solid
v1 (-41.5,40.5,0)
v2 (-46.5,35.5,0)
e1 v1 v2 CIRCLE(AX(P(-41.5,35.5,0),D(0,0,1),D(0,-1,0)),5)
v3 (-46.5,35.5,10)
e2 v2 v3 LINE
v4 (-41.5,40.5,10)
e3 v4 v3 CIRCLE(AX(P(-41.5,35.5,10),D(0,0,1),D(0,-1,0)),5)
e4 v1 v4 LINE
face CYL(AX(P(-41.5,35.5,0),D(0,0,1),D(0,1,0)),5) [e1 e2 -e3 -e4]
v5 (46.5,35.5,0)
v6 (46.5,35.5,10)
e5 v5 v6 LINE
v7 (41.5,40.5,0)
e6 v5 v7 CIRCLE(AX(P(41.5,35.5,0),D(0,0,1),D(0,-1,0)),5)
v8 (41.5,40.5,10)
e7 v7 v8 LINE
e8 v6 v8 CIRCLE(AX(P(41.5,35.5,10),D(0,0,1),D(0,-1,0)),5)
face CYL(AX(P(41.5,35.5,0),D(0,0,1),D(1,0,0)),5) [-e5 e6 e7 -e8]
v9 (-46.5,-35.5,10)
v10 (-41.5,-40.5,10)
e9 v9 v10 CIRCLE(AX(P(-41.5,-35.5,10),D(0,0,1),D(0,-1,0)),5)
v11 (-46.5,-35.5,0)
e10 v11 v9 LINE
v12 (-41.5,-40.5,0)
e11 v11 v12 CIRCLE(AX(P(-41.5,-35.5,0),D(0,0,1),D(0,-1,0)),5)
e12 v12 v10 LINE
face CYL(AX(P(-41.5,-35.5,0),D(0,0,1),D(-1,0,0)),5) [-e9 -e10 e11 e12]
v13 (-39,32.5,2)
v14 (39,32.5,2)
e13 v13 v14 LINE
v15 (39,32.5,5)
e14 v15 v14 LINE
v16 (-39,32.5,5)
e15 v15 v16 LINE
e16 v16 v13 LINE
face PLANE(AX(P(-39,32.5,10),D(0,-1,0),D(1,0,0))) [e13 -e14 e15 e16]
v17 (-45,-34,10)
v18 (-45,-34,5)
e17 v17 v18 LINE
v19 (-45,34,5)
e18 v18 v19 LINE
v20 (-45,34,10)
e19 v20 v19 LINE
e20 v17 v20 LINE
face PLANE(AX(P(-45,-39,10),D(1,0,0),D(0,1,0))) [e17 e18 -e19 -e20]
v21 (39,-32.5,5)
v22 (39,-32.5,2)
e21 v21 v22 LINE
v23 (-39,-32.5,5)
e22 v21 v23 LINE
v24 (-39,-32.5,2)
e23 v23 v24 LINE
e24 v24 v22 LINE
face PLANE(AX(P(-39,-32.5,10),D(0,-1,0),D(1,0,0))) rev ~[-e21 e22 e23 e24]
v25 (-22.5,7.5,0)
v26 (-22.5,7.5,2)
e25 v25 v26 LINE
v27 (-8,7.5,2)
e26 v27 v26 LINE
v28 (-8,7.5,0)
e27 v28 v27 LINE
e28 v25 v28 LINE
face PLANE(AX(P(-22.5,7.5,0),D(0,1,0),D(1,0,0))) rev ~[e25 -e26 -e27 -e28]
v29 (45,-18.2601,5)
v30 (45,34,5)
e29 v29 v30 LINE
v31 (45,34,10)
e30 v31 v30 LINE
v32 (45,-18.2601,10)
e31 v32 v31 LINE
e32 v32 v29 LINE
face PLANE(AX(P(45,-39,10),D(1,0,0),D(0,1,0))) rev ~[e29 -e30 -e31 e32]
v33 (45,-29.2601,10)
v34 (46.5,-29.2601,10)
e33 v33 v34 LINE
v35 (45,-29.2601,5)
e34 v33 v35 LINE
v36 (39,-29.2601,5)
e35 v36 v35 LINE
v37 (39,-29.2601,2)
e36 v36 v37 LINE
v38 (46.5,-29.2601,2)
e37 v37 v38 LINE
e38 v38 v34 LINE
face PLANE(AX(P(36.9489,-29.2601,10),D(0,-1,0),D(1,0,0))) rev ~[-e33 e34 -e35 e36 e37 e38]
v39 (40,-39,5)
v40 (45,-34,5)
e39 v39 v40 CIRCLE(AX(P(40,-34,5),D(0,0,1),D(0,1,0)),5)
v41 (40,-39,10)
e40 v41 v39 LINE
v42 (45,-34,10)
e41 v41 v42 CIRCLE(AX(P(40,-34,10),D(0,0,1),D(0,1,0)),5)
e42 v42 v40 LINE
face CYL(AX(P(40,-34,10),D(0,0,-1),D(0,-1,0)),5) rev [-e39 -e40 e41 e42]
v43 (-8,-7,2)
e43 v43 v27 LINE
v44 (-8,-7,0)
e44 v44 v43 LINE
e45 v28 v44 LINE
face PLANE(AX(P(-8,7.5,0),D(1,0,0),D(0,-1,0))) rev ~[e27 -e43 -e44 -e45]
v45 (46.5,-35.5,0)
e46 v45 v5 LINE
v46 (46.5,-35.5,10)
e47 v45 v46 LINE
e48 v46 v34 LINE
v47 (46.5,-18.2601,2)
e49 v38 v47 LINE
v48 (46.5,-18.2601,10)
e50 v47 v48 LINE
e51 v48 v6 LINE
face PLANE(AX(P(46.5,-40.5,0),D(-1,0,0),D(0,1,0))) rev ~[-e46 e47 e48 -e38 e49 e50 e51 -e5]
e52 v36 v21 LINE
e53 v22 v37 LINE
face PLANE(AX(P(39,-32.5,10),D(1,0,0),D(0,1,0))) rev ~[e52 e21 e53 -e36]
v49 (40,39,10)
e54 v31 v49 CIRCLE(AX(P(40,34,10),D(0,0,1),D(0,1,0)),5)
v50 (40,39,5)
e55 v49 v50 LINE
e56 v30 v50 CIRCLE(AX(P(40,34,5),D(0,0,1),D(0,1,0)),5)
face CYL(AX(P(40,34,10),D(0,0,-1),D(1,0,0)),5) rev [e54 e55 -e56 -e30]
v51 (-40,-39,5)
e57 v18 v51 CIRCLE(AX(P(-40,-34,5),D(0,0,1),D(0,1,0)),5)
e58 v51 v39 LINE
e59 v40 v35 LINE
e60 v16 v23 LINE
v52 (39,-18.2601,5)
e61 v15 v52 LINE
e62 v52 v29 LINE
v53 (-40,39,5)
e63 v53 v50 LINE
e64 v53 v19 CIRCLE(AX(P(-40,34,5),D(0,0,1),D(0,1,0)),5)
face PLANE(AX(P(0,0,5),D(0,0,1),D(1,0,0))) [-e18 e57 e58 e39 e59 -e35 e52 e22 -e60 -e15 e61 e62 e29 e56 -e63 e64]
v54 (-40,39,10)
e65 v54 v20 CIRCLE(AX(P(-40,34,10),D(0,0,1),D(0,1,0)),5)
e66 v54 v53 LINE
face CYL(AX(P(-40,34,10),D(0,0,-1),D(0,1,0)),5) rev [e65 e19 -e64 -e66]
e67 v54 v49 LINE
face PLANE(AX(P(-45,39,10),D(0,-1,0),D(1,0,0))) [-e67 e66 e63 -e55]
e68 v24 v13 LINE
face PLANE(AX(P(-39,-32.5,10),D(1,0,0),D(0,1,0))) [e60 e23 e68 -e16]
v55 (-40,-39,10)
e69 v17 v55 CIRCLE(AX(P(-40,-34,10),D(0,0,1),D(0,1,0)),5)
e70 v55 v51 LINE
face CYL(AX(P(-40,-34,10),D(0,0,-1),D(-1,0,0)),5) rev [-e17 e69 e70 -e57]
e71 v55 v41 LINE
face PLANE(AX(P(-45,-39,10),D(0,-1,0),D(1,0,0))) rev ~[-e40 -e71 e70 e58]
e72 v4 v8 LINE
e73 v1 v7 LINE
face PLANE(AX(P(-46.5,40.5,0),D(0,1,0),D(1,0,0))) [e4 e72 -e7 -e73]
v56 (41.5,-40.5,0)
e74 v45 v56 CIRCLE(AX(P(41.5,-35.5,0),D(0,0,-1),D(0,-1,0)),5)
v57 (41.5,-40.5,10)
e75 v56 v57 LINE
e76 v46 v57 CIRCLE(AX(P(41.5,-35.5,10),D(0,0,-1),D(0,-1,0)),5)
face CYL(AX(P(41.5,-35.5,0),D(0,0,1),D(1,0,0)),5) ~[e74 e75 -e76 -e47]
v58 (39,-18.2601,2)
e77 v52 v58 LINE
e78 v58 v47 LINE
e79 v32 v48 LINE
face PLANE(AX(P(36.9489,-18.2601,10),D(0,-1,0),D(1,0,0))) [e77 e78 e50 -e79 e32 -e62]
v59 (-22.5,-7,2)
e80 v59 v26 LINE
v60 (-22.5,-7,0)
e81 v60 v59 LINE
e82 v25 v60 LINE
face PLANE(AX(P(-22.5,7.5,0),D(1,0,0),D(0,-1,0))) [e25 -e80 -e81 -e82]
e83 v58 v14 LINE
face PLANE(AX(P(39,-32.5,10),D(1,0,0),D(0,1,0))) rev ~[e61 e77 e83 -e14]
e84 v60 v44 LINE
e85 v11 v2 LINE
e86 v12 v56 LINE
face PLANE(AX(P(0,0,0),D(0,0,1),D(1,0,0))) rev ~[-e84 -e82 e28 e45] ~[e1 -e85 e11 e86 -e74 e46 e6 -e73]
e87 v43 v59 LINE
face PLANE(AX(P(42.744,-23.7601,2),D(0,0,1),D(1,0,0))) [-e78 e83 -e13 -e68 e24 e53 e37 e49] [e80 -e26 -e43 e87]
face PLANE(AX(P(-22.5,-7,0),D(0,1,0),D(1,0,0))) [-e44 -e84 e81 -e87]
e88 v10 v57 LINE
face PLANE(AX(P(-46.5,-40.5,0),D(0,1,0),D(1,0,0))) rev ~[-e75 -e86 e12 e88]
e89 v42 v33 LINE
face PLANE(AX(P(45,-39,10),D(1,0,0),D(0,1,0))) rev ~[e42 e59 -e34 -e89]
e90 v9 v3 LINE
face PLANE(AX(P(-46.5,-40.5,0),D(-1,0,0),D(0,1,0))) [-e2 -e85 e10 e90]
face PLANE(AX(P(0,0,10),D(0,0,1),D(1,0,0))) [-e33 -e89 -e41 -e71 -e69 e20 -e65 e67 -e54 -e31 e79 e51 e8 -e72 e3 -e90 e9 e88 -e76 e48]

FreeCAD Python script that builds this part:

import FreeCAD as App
import Part
import Sketcher

V = App.Vector
Q = App.Units.Quantity


def edges_at(feature, points):
    """Names of the edges that pass closest to the given points."""
    edges = feature.Shape.Edges
    near = lambda p: min(range(len(edges)), key=lambda i: edges[i].distToShape(Part.Vertex(*p))[0])
    return sorted({f"Edge{near(p) + 1}" for p in points})

doc = App.newDocument("Part")
params = doc.addObject("Spreadsheet::Sheet", "Params")
for row, (alias, value) in enumerate([
    ("sketch1_width", "93 mm"),
    ("sketch1_height", "81 mm"),
    ("pad1_length", "10 mm"),
    ("sketch2_width", "78 mm"),
    ("sketch2_height", "65 mm"),
    ("pocket1_length", "8 mm"),
    ("sketch3_width", "90 mm"),
    ("sketch3_height", "78 mm"),
    ("pocket2_length", "5 mm"),
    ("sketch4_height", "11 mm"),
    ("pocket3_length", "8 mm"),
    ("fillet_radius", "5 mm"),
    ("fillet2_radius", "5 mm"),
    ("sketch5_width", "14.5 mm"),
], start=1):
    params.set(f"A{row}", alias)
    params.set(f"B{row}", "=" + value)
    params.setAlias(f"B{row}", alias)

body = doc.addObject("PartDesign::Body", "Body")

# Sketch on XY plane
sketch1 = body.newObject("Sketcher::SketchObject", "Sketch")
sketch1.AttachmentSupport = (doc.getObject("XY_Plane"), [""])
sketch1.MapMode = "FlatFace"
sketch1.addGeometry(Part.LineSegment(V(-46, 40, 0), V(-46, -40, 0)), False)
sketch1.addGeometry(Part.LineSegment(V(-46, -40, 0), V(46, -40, 0)), False)
sketch1.addGeometry(Part.LineSegment(V(46, -40, 0), V(46, 40, 0)), False)
sketch1.addGeometry(Part.LineSegment(V(46, 40, 0), V(-46, 40, 0)), False)
sketch1.addConstraint(Sketcher.Constraint("Coincident", 0, 2, 1, 1))
sketch1.addConstraint(Sketcher.Constraint("Coincident", 1, 2, 2, 1))
sketch1.addConstraint(Sketcher.Constraint("Coincident", 2, 2, 3, 1))
sketch1.addConstraint(Sketcher.Constraint("Coincident", 3, 2, 0, 1))
sketch1.addConstraint(Sketcher.Constraint("Vertical", 0))
sketch1.addConstraint(Sketcher.Constraint("Horizontal", 1))
sketch1.addConstraint(Sketcher.Constraint("Vertical", 2))
sketch1.addConstraint(Sketcher.Constraint("Horizontal", 3))
sketch1.addConstraint(Sketcher.Constraint("Symmetric", 0, 2, 2, 2, -1, 1))
sketch1.addConstraint(Sketcher.Constraint("DistanceX", 1, 1, 1, 2, Q("93 mm")))
sketch1.addConstraint(Sketcher.Constraint("DistanceY", 0, 2, 0, 1, Q("81 mm")))
sketch1.setExpression("Constraints[9]", "Params.sketch1_width")
sketch1.setExpression("Constraints[10]", "Params.sketch1_height")
pad1 = body.newObject("PartDesign::Pad", "Pad")
pad1.Profile = sketch1
pad1.setExpression("Length", "Params.pad1_length")

# Sketch on XY plane
sketch2 = body.newObject("Sketcher::SketchObject", "Sketch001")
sketch2.AttachmentSupport = (doc.getObject("XY_Plane"), [""])
sketch2.MapMode = "FlatFace"
sketch2.AttachmentOffset = App.Placement(V(0, 0, 10), App.Rotation())
sketch2.addGeometry(Part.LineSegment(V(-39, 32, 0), V(-39, -32, 0)), False)
sketch2.addGeometry(Part.LineSegment(V(-39, -32, 0), V(39, -32, 0)), False)
sketch2.addGeometry(Part.LineSegment(V(39, -32, 0), V(39, 32, 0)), False)
sketch2.addGeometry(Part.LineSegment(V(39, 32, 0), V(-39, 32, 0)), False)
sketch2.addConstraint(Sketcher.Constraint("Coincident", 0, 2, 1, 1))
sketch2.addConstraint(Sketcher.Constraint("Coincident", 1, 2, 2, 1))
sketch2.addConstraint(Sketcher.Constraint("Coincident", 2, 2, 3, 1))
sketch2.addConstraint(Sketcher.Constraint("Coincident", 3, 2, 0, 1))
sketch2.addConstraint(Sketcher.Constraint("Vertical", 0))
sketch2.addConstraint(Sketcher.Constraint("Horizontal", 1))
sketch2.addConstraint(Sketcher.Constraint("Vertical", 2))
sketch2.addConstraint(Sketcher.Constraint("Horizontal", 3))
sketch2.addConstraint(Sketcher.Constraint("Symmetric", 0, 2, 2, 2, -1, 1))
sketch2.addConstraint(Sketcher.Constraint("DistanceX", 1, 1, 1, 2, Q("78 mm")))
sketch2.addConstraint(Sketcher.Constraint("DistanceY", 0, 2, 0, 1, Q("65 mm")))
sketch2.setExpression("Constraints[9]", "Params.sketch2_width")
sketch2.setExpression("Constraints[10]", "Params.sketch2_height")
pocket1 = body.newObject("PartDesign::Pocket", "Pocket")
pocket1.Profile = sketch2
pocket1.setExpression("Length", "Params.pocket1_length")

# Sketch on XY plane
sketch3 = body.newObject("Sketcher::SketchObject", "Sketch002")
sketch3.AttachmentSupport = (doc.getObject("XY_Plane"), [""])
sketch3.MapMode = "FlatFace"
sketch3.AttachmentOffset = App.Placement(V(0, 0, 10), App.Rotation())
sketch3.addGeometry(Part.LineSegment(V(-45, 39, 0), V(-45, -39, 0)), False)
sketch3.addGeometry(Part.LineSegment(V(-45, -39, 0), V(45, -39, 0)), False)
sketch3.addGeometry(Part.LineSegment(V(45, -39, 0), V(45, 39, 0)), False)
sketch3.addGeometry(Part.LineSegment(V(45, 39, 0), V(-45, 39, 0)), False)
sketch3.addConstraint(Sketcher.Constraint("Coincident", 0, 2, 1, 1))
sketch3.addConstraint(Sketcher.Constraint("Coincident", 1, 2, 2, 1))
sketch3.addConstraint(Sketcher.Constraint("Coincident", 2, 2, 3, 1))
sketch3.addConstraint(Sketcher.Constraint("Coincident", 3, 2, 0, 1))
sketch3.addConstraint(Sketcher.Constraint("Vertical", 0))
sketch3.addConstraint(Sketcher.Constraint("Horizontal", 1))
sketch3.addConstraint(Sketcher.Constraint("Vertical", 2))
sketch3.addConstraint(Sketcher.Constraint("Horizontal", 3))
sketch3.addConstraint(Sketcher.Constraint("Symmetric", 0, 2, 2, 2, -1, 1))
sketch3.addConstraint(Sketcher.Constraint("DistanceX", 1, 1, 1, 2, Q("90 mm")))
sketch3.addConstraint(Sketcher.Constraint("DistanceY", 0, 2, 0, 1, Q("78 mm")))
sketch3.setExpression("Constraints[9]", "Params.sketch3_width")
sketch3.setExpression("Constraints[10]", "Params.sketch3_height")
pocket2 = body.newObject("PartDesign::Pocket", "Pocket001")
pocket2.Profile = sketch3
pocket2.setExpression("Length", "Params.pocket2_length")

# Sketch on XY plane
sketch4 = body.newObject("Sketcher::SketchObject", "Sketch003")
sketch4.AttachmentSupport = (doc.getObject("XY_Plane"), [""])
sketch4.MapMode = "FlatFace"
sketch4.AttachmentOffset = App.Placement(V(0, 0, 10), App.Rotation())
sketch4.addGeometry(Part.LineSegment(V(37, -18, 0), V(37, -29, 0)), False)
sketch4.addGeometry(Part.LineSegment(V(37, -29, 0), V(49, -29, 0)), False)
sketch4.addGeometry(Part.LineSegment(V(49, -29, 0), V(49, -18, 0)), False)
sketch4.addGeometry(Part.LineSegment(V(49, -18, 0), V(37, -18, 0)), False)
sketch4.addConstraint(Sketcher.Constraint("Coincident", 0, 2, 1, 1))
sketch4.addConstraint(Sketcher.Constraint("Coincident", 1, 2, 2, 1))
sketch4.addConstraint(Sketcher.Constraint("Coincident", 2, 2, 3, 1))
sketch4.addConstraint(Sketcher.Constraint("Coincident", 3, 2, 0, 1))
sketch4.addConstraint(Sketcher.Constraint("Vertical", 0))
sketch4.addConstraint(Sketcher.Constraint("Horizontal", 1))
sketch4.addConstraint(Sketcher.Constraint("Vertical", 2))
sketch4.addConstraint(Sketcher.Constraint("Horizontal", 3))
sketch4.addConstraint(Sketcher.Constraint("DistanceY", 0, 2, 0, 1, Q("11 mm")))
sketch4.addConstraint(Sketcher.Constraint("DistanceX", 1, 1, 1, 2, Q("11.5902 mm")))
sketch4.addConstraint(Sketcher.Constraint("DistanceX", -1, 1, 0, 2, Q("36.9489 mm")))
sketch4.addConstraint(Sketcher.Constraint("DistanceY", 0, 2, -1, 1, Q("29.2601 mm")))
sketch4.setExpression("Constraints[8]", "Params.sketch4_height")
pocket3 = body.newObject("PartDesign::Pocket", "Pocket002")
pocket3.Profile = sketch4
pocket3.setExpression("Length", "Params.pocket3_length")
doc.recompute()

fillet = body.newObject("PartDesign::Fillet", "Fillet")
fillet.Base = (pocket3, edges_at(pocket3, [
    (45, 39, 7.5),
    (-45, 39, 7.5),
    (45, -39, 7.5),
    (-45, -39, 7.5),
]))
fillet.setExpression("Radius", "Params.fillet_radius")
doc.recompute()

fillet2 = body.newObject("PartDesign::Fillet", "Fillet001")
fillet2.Base = (fillet, edges_at(fillet, [
    (46.5, -40.5, 5),
    (-46.5, -40.5, 5),
    (-46.5, 40.5, 5),
    (46.5, 40.5, 5),
]))
fillet2.setExpression("Radius", "Params.fillet2_radius")

# Sketch on XY plane
sketch5 = body.newObject("Sketcher::SketchObject", "Sketch004")
sketch5.AttachmentSupport = (doc.getObject("XY_Plane"), [""])
sketch5.MapMode = "FlatFace"
sketch5.addGeometry(Part.LineSegment(V(-22, -7, 0), V(-22, 8, 0)), False)
sketch5.addGeometry(Part.LineSegment(V(-22, 8, 0), V(-8, 8, 0)), False)
sketch5.addGeometry(Part.LineSegment(V(-8, 8, 0), V(-8, -7, 0)), False)
sketch5.addGeometry(Part.LineSegment(V(-8, -7, 0), V(-22, -7, 0)), False)
sketch5.addConstraint(Sketcher.Constraint("Coincident", 0, 2, 1, 1))
sketch5.addConstraint(Sketcher.Constraint("Coincident", 1, 2, 2, 1))
sketch5.addConstraint(Sketcher.Constraint("Coincident", 2, 2, 3, 1))
sketch5.addConstraint(Sketcher.Constraint("Coincident", 3, 2, 0, 1))
sketch5.addConstraint(Sketcher.Constraint("Vertical", 0))
sketch5.addConstraint(Sketcher.Constraint("Horizontal", 1))
sketch5.addConstraint(Sketcher.Constraint("Vertical", 2))
sketch5.addConstraint(Sketcher.Constraint("Horizontal", 3))
sketch5.addConstraint(Sketcher.Constraint("Equal", 3, 0))
sketch5.addConstraint(Sketcher.Constraint("DistanceX", 1, 1, 1, 2, Q("14.5 mm")))
sketch5.addConstraint(Sketcher.Constraint("DistanceX", 1, 2, -1, 1, Q("8 mm")))
sketch5.addConstraint(Sketcher.Constraint("DistanceY", 2, 2, -1, 1, Q("7 mm")))
sketch5.setExpression("Constraints[9]", "Params.sketch5_width")
pocket4 = body.newObject("PartDesign::Pocket", "Pocket003")
pocket4.Profile = sketch5
pocket4.Type = "ThroughAll"
pocket4.Reversed = True

doc.recompute()
